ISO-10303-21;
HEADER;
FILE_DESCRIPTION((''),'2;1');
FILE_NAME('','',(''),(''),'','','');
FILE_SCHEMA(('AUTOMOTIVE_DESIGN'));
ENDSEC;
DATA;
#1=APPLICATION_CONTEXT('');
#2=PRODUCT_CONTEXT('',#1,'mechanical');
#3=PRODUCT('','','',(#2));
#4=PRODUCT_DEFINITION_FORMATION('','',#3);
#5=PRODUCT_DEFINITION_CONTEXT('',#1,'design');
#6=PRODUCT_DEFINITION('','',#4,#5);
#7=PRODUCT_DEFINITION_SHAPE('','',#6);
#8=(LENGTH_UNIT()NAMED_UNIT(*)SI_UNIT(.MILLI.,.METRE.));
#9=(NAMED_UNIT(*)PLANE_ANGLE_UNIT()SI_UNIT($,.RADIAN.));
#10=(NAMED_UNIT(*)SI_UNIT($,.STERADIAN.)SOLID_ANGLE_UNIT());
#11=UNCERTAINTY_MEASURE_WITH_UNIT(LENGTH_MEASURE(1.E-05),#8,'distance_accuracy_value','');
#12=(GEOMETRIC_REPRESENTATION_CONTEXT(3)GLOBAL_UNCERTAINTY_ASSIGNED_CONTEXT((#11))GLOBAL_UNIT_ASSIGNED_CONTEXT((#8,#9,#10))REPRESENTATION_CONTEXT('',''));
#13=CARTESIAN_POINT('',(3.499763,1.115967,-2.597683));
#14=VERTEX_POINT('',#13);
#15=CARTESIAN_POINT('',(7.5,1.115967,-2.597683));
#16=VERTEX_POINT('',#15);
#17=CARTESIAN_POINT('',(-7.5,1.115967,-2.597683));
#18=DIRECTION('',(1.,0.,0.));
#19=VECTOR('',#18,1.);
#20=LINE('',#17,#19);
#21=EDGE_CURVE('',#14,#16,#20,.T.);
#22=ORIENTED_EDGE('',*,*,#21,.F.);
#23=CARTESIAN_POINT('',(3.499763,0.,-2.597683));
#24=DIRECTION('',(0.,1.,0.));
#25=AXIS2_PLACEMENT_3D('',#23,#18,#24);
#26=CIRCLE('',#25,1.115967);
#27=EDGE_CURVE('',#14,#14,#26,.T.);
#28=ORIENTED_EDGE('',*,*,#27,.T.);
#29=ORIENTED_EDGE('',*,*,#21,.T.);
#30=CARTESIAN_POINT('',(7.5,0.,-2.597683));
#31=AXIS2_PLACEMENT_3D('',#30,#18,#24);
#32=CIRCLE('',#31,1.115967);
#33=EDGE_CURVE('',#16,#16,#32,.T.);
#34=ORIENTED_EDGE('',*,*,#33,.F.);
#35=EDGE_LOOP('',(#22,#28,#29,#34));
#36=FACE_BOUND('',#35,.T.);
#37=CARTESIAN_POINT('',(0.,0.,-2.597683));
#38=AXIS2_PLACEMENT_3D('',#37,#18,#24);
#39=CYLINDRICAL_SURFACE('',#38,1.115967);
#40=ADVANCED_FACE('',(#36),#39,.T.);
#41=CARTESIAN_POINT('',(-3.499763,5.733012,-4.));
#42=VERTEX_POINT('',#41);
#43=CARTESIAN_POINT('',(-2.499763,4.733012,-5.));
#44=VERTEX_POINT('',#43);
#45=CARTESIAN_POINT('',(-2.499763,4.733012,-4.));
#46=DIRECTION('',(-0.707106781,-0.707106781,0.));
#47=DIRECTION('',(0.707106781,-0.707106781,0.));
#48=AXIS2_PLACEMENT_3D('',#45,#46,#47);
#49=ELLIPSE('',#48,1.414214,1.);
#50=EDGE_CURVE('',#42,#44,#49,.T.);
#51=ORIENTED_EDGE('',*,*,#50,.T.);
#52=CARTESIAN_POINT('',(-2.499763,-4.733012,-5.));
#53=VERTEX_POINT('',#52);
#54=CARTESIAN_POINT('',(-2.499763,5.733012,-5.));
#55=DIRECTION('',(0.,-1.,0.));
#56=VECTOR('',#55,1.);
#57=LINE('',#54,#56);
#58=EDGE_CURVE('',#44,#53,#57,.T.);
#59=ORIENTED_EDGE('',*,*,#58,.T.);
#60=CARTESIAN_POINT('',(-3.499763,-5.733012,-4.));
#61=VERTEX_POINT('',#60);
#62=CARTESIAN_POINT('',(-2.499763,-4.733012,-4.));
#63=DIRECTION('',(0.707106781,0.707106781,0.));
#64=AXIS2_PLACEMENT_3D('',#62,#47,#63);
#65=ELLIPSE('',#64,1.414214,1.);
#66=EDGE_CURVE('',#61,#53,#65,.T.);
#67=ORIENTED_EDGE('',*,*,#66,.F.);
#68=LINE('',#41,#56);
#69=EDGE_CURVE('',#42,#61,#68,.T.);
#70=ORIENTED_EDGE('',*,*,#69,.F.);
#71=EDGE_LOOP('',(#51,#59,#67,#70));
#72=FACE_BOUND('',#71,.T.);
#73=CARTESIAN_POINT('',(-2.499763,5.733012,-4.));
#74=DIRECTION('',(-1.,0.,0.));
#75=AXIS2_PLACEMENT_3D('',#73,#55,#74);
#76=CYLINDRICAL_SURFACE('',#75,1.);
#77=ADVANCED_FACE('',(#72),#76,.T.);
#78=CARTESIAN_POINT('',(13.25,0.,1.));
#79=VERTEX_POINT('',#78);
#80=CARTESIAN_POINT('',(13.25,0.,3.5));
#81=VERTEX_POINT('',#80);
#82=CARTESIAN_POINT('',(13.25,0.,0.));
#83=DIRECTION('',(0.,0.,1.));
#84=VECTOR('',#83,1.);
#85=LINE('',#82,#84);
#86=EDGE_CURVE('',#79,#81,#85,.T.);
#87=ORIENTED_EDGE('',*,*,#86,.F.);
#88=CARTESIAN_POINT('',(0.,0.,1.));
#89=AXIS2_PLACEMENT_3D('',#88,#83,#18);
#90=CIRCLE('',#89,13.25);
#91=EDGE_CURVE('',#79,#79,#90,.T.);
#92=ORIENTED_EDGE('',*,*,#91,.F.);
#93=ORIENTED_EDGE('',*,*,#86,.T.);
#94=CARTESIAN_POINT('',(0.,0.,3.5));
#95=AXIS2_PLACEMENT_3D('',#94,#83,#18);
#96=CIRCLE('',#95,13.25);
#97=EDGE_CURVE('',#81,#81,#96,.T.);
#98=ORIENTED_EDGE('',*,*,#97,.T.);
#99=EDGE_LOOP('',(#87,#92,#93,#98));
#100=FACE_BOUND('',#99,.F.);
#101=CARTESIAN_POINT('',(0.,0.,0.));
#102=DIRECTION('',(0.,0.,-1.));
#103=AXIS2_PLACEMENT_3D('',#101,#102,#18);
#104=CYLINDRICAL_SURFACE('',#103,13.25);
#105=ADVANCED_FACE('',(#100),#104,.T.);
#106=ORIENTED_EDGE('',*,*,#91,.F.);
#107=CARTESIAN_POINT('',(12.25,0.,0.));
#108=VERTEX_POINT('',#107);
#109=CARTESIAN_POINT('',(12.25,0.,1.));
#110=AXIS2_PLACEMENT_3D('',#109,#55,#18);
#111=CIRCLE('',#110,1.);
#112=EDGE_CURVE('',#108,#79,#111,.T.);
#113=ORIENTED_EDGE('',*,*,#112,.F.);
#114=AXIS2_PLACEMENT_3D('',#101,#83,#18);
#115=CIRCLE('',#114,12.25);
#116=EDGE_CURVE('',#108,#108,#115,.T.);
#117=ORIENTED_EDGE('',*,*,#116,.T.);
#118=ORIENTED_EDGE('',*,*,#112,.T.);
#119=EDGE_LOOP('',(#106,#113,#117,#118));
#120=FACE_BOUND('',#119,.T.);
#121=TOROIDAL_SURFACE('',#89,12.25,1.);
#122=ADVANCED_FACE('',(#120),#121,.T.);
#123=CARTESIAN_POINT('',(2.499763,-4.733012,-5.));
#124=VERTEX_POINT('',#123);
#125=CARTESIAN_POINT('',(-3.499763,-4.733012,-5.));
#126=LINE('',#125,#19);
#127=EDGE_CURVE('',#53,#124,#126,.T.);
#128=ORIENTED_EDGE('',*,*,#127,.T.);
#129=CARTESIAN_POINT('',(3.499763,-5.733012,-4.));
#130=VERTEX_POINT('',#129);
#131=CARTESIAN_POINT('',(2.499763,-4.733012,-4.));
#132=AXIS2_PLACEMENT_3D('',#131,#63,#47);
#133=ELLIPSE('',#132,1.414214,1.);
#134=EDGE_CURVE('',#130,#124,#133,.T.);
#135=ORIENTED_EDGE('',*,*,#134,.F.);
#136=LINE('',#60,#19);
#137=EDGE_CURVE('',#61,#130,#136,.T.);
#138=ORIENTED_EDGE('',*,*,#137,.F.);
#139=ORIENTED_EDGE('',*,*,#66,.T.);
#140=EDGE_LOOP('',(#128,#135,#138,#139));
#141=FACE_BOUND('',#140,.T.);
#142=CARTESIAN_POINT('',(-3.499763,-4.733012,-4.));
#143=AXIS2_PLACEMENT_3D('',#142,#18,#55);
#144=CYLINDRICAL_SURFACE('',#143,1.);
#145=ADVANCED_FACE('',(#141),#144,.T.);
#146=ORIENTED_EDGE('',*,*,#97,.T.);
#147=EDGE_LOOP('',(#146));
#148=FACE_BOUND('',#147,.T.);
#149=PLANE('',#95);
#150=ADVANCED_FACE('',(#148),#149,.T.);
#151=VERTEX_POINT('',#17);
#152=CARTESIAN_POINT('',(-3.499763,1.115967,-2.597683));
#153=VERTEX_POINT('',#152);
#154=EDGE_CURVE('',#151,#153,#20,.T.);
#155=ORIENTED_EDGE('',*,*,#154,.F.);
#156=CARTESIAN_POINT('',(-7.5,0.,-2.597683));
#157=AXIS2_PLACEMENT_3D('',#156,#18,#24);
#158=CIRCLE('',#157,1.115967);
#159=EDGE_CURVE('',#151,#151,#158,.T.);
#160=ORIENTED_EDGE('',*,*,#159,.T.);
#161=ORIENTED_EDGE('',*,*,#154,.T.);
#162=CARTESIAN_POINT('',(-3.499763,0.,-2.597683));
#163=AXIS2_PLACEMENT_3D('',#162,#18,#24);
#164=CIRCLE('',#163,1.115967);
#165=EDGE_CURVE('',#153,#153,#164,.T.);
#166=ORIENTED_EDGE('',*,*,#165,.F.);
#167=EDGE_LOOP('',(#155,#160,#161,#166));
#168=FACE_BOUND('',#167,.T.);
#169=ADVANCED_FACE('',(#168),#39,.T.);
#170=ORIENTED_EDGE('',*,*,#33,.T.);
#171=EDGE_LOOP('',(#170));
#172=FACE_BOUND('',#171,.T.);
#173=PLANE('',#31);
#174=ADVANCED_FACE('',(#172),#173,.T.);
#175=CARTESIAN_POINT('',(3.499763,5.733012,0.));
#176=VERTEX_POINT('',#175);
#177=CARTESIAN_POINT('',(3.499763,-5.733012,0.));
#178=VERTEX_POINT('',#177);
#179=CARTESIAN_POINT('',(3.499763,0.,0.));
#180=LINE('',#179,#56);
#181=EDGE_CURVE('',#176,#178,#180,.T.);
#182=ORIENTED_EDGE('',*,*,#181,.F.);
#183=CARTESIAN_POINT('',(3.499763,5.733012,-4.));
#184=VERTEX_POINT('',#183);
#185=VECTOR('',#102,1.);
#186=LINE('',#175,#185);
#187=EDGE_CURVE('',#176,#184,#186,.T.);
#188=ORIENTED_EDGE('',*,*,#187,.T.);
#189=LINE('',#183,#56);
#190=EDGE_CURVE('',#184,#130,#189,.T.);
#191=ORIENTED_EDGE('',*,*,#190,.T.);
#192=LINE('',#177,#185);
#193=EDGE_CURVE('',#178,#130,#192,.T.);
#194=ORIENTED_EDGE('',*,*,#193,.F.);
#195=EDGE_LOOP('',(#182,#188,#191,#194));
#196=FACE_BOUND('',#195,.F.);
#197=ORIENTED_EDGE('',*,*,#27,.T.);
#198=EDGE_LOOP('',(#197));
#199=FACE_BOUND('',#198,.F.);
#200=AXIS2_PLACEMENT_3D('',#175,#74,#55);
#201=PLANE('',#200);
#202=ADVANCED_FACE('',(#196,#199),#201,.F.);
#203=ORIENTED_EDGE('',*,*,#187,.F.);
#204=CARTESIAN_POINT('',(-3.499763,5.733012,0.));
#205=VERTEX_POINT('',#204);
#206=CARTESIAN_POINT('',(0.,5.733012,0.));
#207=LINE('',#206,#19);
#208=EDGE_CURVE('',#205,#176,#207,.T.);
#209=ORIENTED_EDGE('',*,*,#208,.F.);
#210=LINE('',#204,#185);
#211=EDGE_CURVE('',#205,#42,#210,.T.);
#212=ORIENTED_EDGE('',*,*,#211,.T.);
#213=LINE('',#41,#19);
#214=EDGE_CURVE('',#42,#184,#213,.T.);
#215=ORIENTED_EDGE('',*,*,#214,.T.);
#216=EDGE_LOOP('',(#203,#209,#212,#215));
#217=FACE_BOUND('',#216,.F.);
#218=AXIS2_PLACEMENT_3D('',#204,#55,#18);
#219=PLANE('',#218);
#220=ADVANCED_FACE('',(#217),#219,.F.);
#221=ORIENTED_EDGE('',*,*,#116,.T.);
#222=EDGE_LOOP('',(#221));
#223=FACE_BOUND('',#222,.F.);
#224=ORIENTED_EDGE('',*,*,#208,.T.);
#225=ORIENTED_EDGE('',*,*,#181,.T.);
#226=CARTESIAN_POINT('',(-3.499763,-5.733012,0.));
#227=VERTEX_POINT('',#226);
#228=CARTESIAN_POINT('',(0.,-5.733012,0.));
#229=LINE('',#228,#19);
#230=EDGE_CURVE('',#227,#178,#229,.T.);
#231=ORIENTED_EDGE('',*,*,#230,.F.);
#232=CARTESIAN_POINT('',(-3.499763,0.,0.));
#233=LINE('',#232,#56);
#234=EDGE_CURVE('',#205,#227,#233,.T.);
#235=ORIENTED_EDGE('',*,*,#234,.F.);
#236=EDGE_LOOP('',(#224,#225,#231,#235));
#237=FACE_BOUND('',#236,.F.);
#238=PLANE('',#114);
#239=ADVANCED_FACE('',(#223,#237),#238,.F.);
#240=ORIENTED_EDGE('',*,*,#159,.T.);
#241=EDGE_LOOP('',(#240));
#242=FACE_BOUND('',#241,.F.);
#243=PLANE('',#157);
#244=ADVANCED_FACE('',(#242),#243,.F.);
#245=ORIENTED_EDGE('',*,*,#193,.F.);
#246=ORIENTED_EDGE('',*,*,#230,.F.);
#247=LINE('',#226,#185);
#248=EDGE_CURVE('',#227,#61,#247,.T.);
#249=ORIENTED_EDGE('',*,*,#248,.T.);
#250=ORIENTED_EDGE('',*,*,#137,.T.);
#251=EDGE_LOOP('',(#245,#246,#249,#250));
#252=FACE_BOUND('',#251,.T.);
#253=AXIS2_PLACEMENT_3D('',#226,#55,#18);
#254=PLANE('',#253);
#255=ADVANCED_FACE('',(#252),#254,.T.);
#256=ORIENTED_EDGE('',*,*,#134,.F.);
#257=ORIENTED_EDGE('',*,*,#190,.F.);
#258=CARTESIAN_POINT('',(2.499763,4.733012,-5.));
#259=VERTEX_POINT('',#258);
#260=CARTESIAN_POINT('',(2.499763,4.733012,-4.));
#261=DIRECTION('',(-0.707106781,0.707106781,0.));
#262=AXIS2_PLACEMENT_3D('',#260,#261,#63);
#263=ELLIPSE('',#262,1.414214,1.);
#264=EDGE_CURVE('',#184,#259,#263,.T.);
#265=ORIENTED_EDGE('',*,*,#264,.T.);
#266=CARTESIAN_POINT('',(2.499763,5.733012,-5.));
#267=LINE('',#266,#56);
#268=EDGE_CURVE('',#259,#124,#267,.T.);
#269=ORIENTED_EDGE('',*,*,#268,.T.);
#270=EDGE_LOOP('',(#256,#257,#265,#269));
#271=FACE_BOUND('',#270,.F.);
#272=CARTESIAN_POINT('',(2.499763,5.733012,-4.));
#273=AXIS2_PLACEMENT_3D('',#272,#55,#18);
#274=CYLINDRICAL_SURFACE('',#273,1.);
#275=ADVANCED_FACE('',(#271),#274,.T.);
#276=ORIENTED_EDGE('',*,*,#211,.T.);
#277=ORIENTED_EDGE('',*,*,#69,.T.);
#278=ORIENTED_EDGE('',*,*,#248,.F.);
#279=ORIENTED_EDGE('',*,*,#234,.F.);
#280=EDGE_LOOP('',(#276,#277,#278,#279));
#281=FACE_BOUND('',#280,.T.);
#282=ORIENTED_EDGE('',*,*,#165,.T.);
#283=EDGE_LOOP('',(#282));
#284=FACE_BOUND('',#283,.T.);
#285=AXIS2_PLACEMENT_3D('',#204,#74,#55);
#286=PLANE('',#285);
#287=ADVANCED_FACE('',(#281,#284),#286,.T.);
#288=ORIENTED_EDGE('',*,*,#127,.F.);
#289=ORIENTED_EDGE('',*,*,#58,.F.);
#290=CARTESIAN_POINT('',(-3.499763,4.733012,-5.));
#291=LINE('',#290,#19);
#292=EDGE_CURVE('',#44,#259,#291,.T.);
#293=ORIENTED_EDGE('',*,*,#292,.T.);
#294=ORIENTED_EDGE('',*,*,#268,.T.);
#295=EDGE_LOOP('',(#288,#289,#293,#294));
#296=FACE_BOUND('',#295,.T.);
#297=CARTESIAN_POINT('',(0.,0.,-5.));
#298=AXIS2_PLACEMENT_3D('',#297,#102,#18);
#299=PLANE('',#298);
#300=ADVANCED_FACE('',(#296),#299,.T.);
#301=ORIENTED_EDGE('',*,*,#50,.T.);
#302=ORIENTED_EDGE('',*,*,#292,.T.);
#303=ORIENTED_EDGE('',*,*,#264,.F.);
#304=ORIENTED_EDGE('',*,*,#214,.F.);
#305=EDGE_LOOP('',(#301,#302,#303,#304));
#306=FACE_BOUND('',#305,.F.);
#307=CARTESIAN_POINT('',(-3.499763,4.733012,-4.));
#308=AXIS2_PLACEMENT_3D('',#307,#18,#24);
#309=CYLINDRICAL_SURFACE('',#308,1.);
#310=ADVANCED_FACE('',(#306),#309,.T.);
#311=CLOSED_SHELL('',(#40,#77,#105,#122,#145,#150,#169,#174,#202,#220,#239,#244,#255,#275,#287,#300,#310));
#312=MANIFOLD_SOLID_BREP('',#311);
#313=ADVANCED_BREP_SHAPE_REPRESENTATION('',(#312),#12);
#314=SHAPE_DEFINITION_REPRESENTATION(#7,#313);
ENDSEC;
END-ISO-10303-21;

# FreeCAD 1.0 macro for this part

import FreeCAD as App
import Part
import Sketcher

V = App.Vector


def edges_at(feature, points):
    """Names of the edges that pass closest to the given points."""
    edges = feature.Shape.Edges
    near = lambda p: min(range(len(edges)), key=lambda i: edges[i].distToShape(Part.Vertex(*p))[0])
    return sorted({f"Edge{near(p) + 1}" for p in points})


def add_polygon(sketch, points):
    """Adds a closed chain of lines whose ends are joined by coincident constraints."""
    first, n = sketch.GeometryCount, len(points)
    for a, b in zip(points, points[1:] + points[:1]):
        sketch.addGeometry(Part.LineSegment(App.Vector(*a, 0), App.Vector(*b, 0)), False)
    for i in range(n):
        sketch.addConstraint(Sketcher.Constraint("Coincident", first + i, 2, first + (i + 1) % n, 1))

doc = App.newDocument("Part")
params = doc.addObject("Spreadsheet::Sheet", "Params")
for row, (alias, value) in enumerate([
    ("sketch1_diameter", "26.5 mm"),
    ("pad1_length", "3.5 mm"),
    ("pad2_length", "5 mm"),
    ("pad3_length", "15 mm"),
    ("fillet_radius", "1 mm"),
    ("fillet2_radius", "1 mm"),
], start=1):
    params.set(f"A{row}", alias)
    params.set(f"B{row}", "=" + value)
    params.setAlias(f"B{row}", alias)

body = doc.addObject("PartDesign::Body", "Body")

sketch1 = body.newObject("Sketcher::SketchObject", "Sketch")
sketch1.AttachmentSupport = (doc.getObject("XY_Plane"), [""])
sketch1.MapMode = "FlatFace"
sketch1.addGeometry(Part.Circle(V(0, 0, 0), V(0, 0, 1), 13), False)
sketch1.addConstraint(Sketcher.Constraint("Coincident", 0, 3, -1, 1))
sketch1.addConstraint(Sketcher.Constraint("Diameter", 0, 26.5))
sketch1.setExpression("Constraints[1]", "Params.sketch1_diameter")
pad1 = body.newObject("PartDesign::Pad", "Pad")
pad1.Profile = sketch1
pad1.setExpression("Length", "Params.pad1_length")

sketch2 = body.newObject("Sketcher::SketchObject", "Sketch001")
sketch2.AttachmentSupport = (doc.getObject("XY_Plane"), [""])
sketch2.MapMode = "FlatFace"
add_polygon(sketch2, [(-3, -6), (-3, 6), (3, 6), (3, -6)])
sketch2.addConstraint(Sketcher.Constraint("Vertical", 0))
sketch2.addConstraint(Sketcher.Constraint("Horizontal", 1))
sketch2.addConstraint(Sketcher.Constraint("Vertical", 2))
sketch2.addConstraint(Sketcher.Constraint("Horizontal", 3))
sketch2.addConstraint(Sketcher.Constraint("Symmetric", 0, 2, 2, 2, -1, 1))
sketch2.addConstraint(Sketcher.Constraint("DistanceX", 1, 1, 1, 2, 6.999525))
sketch2.addConstraint(Sketcher.Constraint("DistanceY", 0, 1, 0, 2, 11.466024))
pad2 = body.newObject("PartDesign::Pad", "Pad001")
pad2.Profile = sketch2
pad2.setExpression("Length", "Params.pad2_length")
pad2.Reversed = True

sketch3 = body.newObject("Sketcher::SketchObject", "Sketch002")
sketch3.AttachmentSupport = (doc.getObject("YZ_Plane"), [""])
sketch3.MapMode = "FlatFace"
sketch3.addGeometry(Part.Circle(V(0, -2.6, 0), V(0, 0, 1), 1.1), False)
sketch3.addConstraint(Sketcher.Constraint("PointOnObject", 0, 3, -2))
sketch3.addConstraint(Sketcher.Constraint("Diameter", 0, 2.231934))
sketch3.addConstraint(Sketcher.Constraint("DistanceY", 0, 3, -1, 1, 2.597683))
pad3 = body.newObject("PartDesign::Pad", "Pad002")
pad3.Profile = sketch3
pad3.setExpression("Length", "Params.pad3_length")
pad3.Midplane = True
doc.recompute()

fillet = body.newObject("PartDesign::Fillet", "Fillet")
fillet.Base = (pad3, edges_at(pad3, [(-13.25, 0, 0)]))
fillet.setExpression("Radius", "Params.fillet_radius")
doc.recompute()

fillet2 = body.newObject("PartDesign::Fillet", "Fillet001")
fillet2.Base = (fillet, edges_at(fillet, [
    (0, 5.733, -5),
    (3.5, 0, -5),
    (0, -5.733, -5),
    (-3.5, 0, -5),
]))
fillet2.setExpression("Radius", "Params.fillet2_radius")

doc.recompute()
